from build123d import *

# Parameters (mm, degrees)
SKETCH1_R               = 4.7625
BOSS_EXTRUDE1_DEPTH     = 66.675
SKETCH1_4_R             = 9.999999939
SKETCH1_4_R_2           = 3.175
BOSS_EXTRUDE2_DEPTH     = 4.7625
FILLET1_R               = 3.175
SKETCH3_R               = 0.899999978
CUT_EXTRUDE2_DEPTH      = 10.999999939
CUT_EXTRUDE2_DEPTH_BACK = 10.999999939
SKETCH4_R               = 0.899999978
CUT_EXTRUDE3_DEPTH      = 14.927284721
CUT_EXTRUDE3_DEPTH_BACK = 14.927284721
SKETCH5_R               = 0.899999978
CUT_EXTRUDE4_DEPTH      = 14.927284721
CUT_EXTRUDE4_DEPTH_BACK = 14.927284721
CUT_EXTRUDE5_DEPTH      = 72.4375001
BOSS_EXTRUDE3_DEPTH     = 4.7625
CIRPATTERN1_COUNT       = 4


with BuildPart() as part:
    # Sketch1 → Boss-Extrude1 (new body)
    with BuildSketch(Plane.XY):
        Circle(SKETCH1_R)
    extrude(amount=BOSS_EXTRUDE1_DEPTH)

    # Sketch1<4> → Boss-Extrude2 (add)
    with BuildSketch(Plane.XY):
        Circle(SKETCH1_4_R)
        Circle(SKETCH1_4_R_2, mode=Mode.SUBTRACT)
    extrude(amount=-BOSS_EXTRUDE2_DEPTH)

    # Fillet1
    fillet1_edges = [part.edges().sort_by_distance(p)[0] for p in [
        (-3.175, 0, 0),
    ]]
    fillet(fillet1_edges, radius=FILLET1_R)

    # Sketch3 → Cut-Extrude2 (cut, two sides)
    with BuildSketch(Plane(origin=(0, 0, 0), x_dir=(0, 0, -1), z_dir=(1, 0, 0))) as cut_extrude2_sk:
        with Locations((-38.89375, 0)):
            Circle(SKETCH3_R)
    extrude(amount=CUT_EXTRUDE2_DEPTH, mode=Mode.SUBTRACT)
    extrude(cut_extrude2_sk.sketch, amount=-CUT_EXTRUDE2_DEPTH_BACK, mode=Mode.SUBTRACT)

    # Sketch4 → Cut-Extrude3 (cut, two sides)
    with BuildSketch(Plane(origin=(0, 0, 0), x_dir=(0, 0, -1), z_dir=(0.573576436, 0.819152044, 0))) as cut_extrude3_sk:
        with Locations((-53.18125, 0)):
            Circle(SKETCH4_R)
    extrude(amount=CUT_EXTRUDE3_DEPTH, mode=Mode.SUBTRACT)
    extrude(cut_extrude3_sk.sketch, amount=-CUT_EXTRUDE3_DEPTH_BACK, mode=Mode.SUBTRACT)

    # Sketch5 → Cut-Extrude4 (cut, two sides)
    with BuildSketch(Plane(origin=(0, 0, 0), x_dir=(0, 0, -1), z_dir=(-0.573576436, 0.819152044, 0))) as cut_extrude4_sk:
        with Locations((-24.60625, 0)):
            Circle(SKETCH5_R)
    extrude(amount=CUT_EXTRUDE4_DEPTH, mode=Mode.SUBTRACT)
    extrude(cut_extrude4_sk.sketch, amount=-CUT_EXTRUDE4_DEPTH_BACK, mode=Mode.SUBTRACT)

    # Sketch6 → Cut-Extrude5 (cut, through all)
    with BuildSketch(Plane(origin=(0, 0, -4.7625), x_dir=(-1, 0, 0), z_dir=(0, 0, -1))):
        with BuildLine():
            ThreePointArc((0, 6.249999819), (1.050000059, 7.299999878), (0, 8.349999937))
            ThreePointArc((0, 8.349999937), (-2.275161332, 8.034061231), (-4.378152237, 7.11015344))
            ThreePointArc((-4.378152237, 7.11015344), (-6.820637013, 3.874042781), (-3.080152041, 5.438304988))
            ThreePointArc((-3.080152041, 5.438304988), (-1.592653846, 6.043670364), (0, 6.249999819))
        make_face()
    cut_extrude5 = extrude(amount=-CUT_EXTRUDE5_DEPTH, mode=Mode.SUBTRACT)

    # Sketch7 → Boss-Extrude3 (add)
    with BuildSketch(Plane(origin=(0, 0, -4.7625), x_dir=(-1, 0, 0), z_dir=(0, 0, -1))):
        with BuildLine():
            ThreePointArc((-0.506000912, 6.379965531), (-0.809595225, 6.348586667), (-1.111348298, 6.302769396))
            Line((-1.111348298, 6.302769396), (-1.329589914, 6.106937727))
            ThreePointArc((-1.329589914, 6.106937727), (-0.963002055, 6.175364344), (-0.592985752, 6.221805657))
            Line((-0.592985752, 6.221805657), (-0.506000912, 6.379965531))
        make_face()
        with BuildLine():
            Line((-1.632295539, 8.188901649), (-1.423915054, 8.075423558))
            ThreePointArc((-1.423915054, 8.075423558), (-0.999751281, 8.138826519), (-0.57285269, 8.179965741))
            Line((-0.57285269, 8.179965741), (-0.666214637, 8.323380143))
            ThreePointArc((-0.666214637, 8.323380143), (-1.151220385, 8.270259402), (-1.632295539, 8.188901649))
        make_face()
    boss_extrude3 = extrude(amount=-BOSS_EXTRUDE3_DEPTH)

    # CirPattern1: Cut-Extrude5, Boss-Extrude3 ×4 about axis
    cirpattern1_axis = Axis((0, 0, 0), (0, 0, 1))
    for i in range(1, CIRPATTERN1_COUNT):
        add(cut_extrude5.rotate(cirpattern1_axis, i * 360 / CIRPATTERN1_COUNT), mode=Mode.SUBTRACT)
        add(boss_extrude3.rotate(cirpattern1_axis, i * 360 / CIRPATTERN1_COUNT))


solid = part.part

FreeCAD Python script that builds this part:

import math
import FreeCAD as App
import Part
import Sketcher

V = App.Vector


def edges_at(feature, points):
    """Names of the edges that pass closest to the given points."""
    edges = feature.Shape.Edges
    near = lambda p: min(range(len(edges)), key=lambda i: edges[i].distToShape(Part.Vertex(*p))[0])
    return sorted({f"Edge{near(p) + 1}" for p in points})

doc = App.newDocument("Part")
body = doc.addObject("PartDesign::Body", "Body")

# Sketch on XY plane
sketch1 = doc.addObject("Sketcher::SketchObject", "Sketch")
body.addObject(sketch1)
sketch1.AttachmentSupport = (doc.XY_Plane, [""])
sketch1.MapMode = "FlatFace"
sketch1.addGeometry(Part.Circle(V(0, 0, 0), V(0, 0, 1), 4.7625), False)
sketch1.addConstraint([
    Sketcher.Constraint("Coincident", 0, 3, -1, 1),
    Sketcher.Constraint("Diameter", 0, 9.525),
])
pad1 = doc.addObject("PartDesign::Pad", "Pad")
body.addObject(pad1)
pad1.Profile = sketch1
pad1.Length = 66.675

# Sketch on XY plane
sketch2 = doc.addObject("Sketcher::SketchObject", "Sketch001")
body.addObject(sketch2)
sketch2.AttachmentSupport = (doc.XY_Plane, [""])
sketch2.MapMode = "FlatFace"
sketch2.addGeometry([
    Part.Circle(V(0, 0, 0), V(0, 0, 1), 10),
    Part.Circle(V(0, 0, 0), V(0, 0, 1), 3.175),
], False)
sketch2.addConstraint([
    Sketcher.Constraint("Coincident", 0, 3, -1, 1),
    Sketcher.Constraint("Coincident", 1, 3, -1, 1),
    Sketcher.Constraint("Diameter", 0, 20.0),
    Sketcher.Constraint("Diameter", 1, 6.35),
])
pad2 = doc.addObject("PartDesign::Pad", "Pad001")
body.addObject(pad2)
pad2.Profile = sketch2
pad2.Length = 4.7625
pad2.Reversed = True
doc.recompute()

fillet = doc.addObject("PartDesign::Fillet", "Fillet")
body.addObject(fillet)
fillet.Base = (pad2, edges_at(pad2, [(-3.175, 0, 0)]))
fillet.Radius = 3.175

# Sketch on YZ plane
sketch3 = doc.addObject("Sketcher::SketchObject", "Sketch002")
body.addObject(sketch3)
sketch3.AttachmentSupport = (doc.YZ_Plane, [""])
sketch3.MapMode = "FlatFace"
sketch3.addGeometry(Part.Circle(V(0, 38.89375, 0), V(0, 0, 1), 0.9), False)
sketch3.addConstraint([
    Sketcher.Constraint("PointOnObject", 0, 3, -2),
    Sketcher.Constraint("Diameter", 0, 1.8),
    Sketcher.Constraint("DistanceY", -1, 1, 0, 3, 38.89375),
])
pocket1 = doc.addObject("PartDesign::Pocket", "Pocket")
body.addObject(pocket1)
pocket1.Profile = sketch3
pocket1.Type = "ThroughAll"
pocket1.Midplane = True

# Sketch on an angled plane
sketch4 = doc.addObject("Sketcher::SketchObject", "Sketch003")
body.addObject(sketch4)
sketch4.Placement = App.Placement(V(0, 0, 0), App.Rotation(V(0, 0, -1), V(-0.819152044, 0.573576436, 0), V(0.573576436, 0.819152044, 0), "ZXY"))
sketch4.addGeometry(Part.Circle(V(-53.18125, 0, 0), V(0, 0, 1), 0.9), False)
sketch4.addConstraint([
    Sketcher.Constraint("PointOnObject", 0, 3, -1),
    Sketcher.Constraint("Diameter", 0, 1.8),
    Sketcher.Constraint("DistanceX", 0, 3, -1, 1, 53.18125),
])
pocket2 = doc.addObject("PartDesign::Pocket", "Pocket001")
body.addObject(pocket2)
pocket2.Profile = sketch4
pocket2.Type = "ThroughAll"
pocket2.Midplane = True

# Sketch on an angled plane
sketch5 = doc.addObject("Sketcher::SketchObject", "Sketch004")
body.addObject(sketch5)
sketch5.Placement = App.Placement(V(0, 0, 0), App.Rotation(V(0, 0, -1), V(-0.819152044, -0.573576436, 0), V(-0.573576436, 0.819152044, 0), "ZXY"))
sketch5.addGeometry(Part.Circle(V(-24.60625, 0, 0), V(0, 0, 1), 0.9), False)
sketch5.addConstraint([
    Sketcher.Constraint("PointOnObject", 0, 3, -1),
    Sketcher.Constraint("Diameter", 0, 1.8),
    Sketcher.Constraint("DistanceX", 0, 3, -1, 1, 24.60625),
])
pocket3 = doc.addObject("PartDesign::Pocket", "Pocket002")
body.addObject(pocket3)
pocket3.Profile = sketch5
pocket3.Type = "ThroughAll"
pocket3.Midplane = True

# Sketch on XY plane
sketch6 = doc.addObject("Sketcher::SketchObject", "Sketch005")
body.addObject(sketch6)
sketch6.AttachmentSupport = (doc.XY_Plane, [""])
sketch6.MapMode = "FlatFace"
sketch6.AttachmentOffset = App.Placement(V(0, 0, -4.7625), App.Rotation())
sketch6.addGeometry([
    Part.ArcOfCircle(Part.Circle(V(0, 7.3, 0), V(0, 0, 1), 1.05), math.radians(90), math.radians(270)),
    Part.ArcOfCircle(Part.Circle(V(0, 0, 0), V(0, 0, 1), 8.35), math.radians(58.376876), math.radians(90)),
    Part.ArcOfCircle(Part.Circle(V(5.161879, 5.161879, 0), V(0, 0, 1), 2.1), math.radians(172.436135), math.radians(471.913317)),
    Part.ArcOfCircle(Part.Circle(V(0, 0, 0), V(0, 0, 1), 6.25), math.radians(60.473613), math.radians(90)),
], False)
sketch6.addConstraint([
    Sketcher.Constraint("Tangent", 0, 1, 1, 2),
    Sketcher.Constraint("Coincident", 1, 1, 2, 2),
    Sketcher.Constraint("Coincident", 2, 1, 3, 1),
    Sketcher.Constraint("Tangent", 3, 2, 0, 2),
    Sketcher.Constraint("Coincident", 1, 3, -1, 1),
    Sketcher.Constraint("Coincident", 3, 3, -1, 1),
    Sketcher.Constraint("PointOnObject", 0, 3, -2),
    Sketcher.Constraint("Radius", 2, 2.1),
    Sketcher.Constraint("Radius", 0, 1.05),
    Sketcher.Constraint("Radius", 1, 8.35),
    Sketcher.Constraint("DistanceX", 2, 1, 1, 1, 1.298),
    Sketcher.Constraint("DistanceX", -1, 1, 2, 3, 5.161879),
])
pocket4 = doc.addObject("PartDesign::Pocket", "Pocket003")
body.addObject(pocket4)
pocket4.Profile = sketch6
pocket4.Type = "ThroughAll"
pocket4.Reversed = True

# Sketch on XY plane
sketch7 = doc.addObject("Sketcher::SketchObject", "Sketch006")
body.addObject(sketch7)
sketch7.AttachmentSupport = (doc.XY_Plane, [""])
sketch7.MapMode = "FlatFace"
sketch7.AttachmentOffset = App.Placement(V(0, 0, -4.7625), App.Rotation())
sketch7.addGeometry([
    Part.ArcOfCircle(Part.Circle(V(0, 0, 0), V(0, 0, 1), 6.4), math.radians(80), math.radians(85.465311)),  # 0
    Part.LineSegment(V(1.111348, 6.302769, 0), V(1.32959, 6.106938, 0)),  # 1
    Part.ArcOfCircle(Part.Circle(V(0, 0, 0), V(0, 0, 1), 6.25), math.radians(77.717357), math.radians(84.555718)),  # 2
    Part.LineSegment(V(0.592986, 6.221806, 0), V(0.506001, 6.379966, 0)),  # 3
    Part.LineSegment(V(1.632296, 8.188902, 0), V(1.423915, 8.075424, 0)),  # 4
    Part.ArcOfCircle(Part.Circle(V(0, 0, 0), V(0, 0, 1), 8.2), math.radians(80), math.radians(85.994049)),  # 5
    Part.LineSegment(V(0.572853, 8.179966, 0), V(0.666215, 8.32338, 0)),  # 6
    Part.ArcOfCircle(Part.Circle(V(0, 0, 0), V(0, 0, 1), 8.35), math.radians(78.726972), math.radians(85.423724)),  # 7
], False)
sketch7.addConstraint([
    Sketcher.Constraint("Coincident", 0, 1, 1, 1),
    Sketcher.Constraint("Coincident", 1, 2, 2, 1),
    Sketcher.Constraint("Coincident", 2, 2, 3, 1),
    Sketcher.Constraint("Coincident", 3, 2, 0, 2),
    Sketcher.Constraint("Coincident", 4, 2, 5, 1),
    Sketcher.Constraint("Coincident", 5, 2, 6, 1),
    Sketcher.Constraint("Coincident", 6, 2, 7, 2),
    Sketcher.Constraint("Coincident", 7, 1, 4, 1),
    Sketcher.Constraint("Coincident", 0, 3, -1, 1),
    Sketcher.Constraint("Coincident", 2, 3, -1, 1),
    Sketcher.Constraint("Coincident", 5, 3, -1, 1),
    Sketcher.Constraint("Coincident", 7, 3, -1, 1),
    Sketcher.Constraint("Radius", 0, 6.4),
    Sketcher.Constraint("Radius", 5, 8.2),
    Sketcher.Constraint("Radius", 2, 6.25),
    Sketcher.Constraint("Radius", 7, 8.35),
    Sketcher.Constraint("DistanceY", 3, 2, 5, 2, 1.8),
    Sketcher.Constraint("DistanceX", -1, 1, 3, 2, 0.506001),
    Sketcher.Constraint("Distance", 3, 0.180502),
    Sketcher.Constraint("DistanceY", -1, 1, 7, 1, 8.188902),
    Sketcher.Constraint("DistanceX", 6, 2, 4, 2, 0.7577),
    Sketcher.Constraint("DistanceX", -1, 1, 0, 1, 1.111348),
    Sketcher.Constraint("DistanceX", -1, 1, 1, 2, 1.32959),
    Sketcher.Constraint("DistanceY", -1, 1, 6, 2, 8.32338),
])
pad3 = doc.addObject("PartDesign::Pad", "Pad002")
body.addObject(pad3)
pad3.Profile = sketch7
pad3.Length = 4.7625
doc.recompute()

polarpattern = doc.addObject("PartDesign::PolarPattern", "PolarPattern")
body.addObject(polarpattern)
polarpattern.Originals = [pocket4, pad3]
polarpattern.Axis = (doc.Z_Axis, [""])
polarpattern.Angle = 360
polarpattern.Occurrences = 4
body.Tip = polarpattern

doc.recompute()
